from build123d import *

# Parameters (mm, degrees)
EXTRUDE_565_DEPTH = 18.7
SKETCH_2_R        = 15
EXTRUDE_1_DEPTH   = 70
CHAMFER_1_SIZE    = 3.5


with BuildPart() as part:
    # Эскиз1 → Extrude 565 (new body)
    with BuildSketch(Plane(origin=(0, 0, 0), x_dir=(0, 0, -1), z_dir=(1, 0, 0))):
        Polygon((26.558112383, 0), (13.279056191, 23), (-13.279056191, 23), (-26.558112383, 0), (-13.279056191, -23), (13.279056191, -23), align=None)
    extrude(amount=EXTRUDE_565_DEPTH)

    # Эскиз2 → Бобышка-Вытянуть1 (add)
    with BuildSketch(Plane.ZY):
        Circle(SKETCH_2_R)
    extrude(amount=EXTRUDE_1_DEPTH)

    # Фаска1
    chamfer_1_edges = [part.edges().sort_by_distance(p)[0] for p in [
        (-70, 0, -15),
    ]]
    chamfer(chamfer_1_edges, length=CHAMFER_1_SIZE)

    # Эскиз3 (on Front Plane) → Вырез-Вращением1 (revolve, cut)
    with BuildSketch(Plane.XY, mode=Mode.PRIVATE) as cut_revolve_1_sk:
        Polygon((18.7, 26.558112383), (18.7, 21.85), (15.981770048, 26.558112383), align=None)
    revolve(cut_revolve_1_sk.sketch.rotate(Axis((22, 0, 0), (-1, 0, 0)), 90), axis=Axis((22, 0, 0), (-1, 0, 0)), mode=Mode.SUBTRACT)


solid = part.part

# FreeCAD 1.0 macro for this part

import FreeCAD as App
import Part
import Sketcher

V = App.Vector
Q = App.Units.Quantity


def edges_at(feature, points):
    """Names of the edges that pass closest to the given points."""
    edges = feature.Shape.Edges
    near = lambda p: min(range(len(edges)), key=lambda i: edges[i].distToShape(Part.Vertex(*p))[0])
    return sorted({f"Edge{near(p) + 1}" for p in points})


def add_polygon(sketch, points):
    """Adds a closed chain of lines whose ends are joined by coincident constraints."""
    first, n = sketch.GeometryCount, len(points)
    for a, b in zip(points, points[1:] + points[:1]):
        sketch.addGeometry(Part.LineSegment(App.Vector(*a, 0), App.Vector(*b, 0)), False)
    for i in range(n):
        sketch.addConstraint(Sketcher.Constraint("Coincident", first + i, 2, first + (i + 1) % n, 1))

doc = App.newDocument("Part")
body = doc.addObject("PartDesign::Body", "Body")

# Sketch on YZ plane
sketch1 = doc.addObject("Sketcher::SketchObject", "Sketch")
body.addObject(sketch1)
sketch1.AttachmentSupport = (doc.YZ_Plane, [""])
sketch1.MapMode = "FlatFace"
add_polygon(sketch1, [(0, -27), (23, -13), (23, 13), (0, 27), (-23, 13), (-23, -13)])  # lines 0-5
sketch1.addConstraint(Sketcher.Constraint("Vertical", 1))
sketch1.addConstraint(Sketcher.Constraint("Vertical", 4))
sketch1.addConstraint(Sketcher.Constraint("Symmetric", 0, 2, 3, 2, -1, 1))
sketch1.addConstraint(Sketcher.Constraint("Symmetric", 2, 2, 5, 2, -1, 1))
sketch1.addConstraint(Sketcher.Constraint("PointOnObject", 2, 2, -2))
sketch1.addConstraint(Sketcher.Constraint("Parallel", 2, 5))
sketch1.addConstraint(Sketcher.Constraint("Horizontal", 1, 2, 3, 2))
sketch1.addConstraint(Sketcher.Constraint("Angle", 0, Q("30 deg")))
sketch1.addConstraint(Sketcher.Constraint("DistanceX", -1, 1, 0, 2, Q("23 mm")))
sketch1.addConstraint(Sketcher.Constraint("DistanceY", 1, 1, 1, 2, Q("26.558112 mm")))
pad1 = doc.addObject("PartDesign::Pad", "Pad")
body.addObject(pad1)
pad1.Profile = sketch1
pad1.Length = 18.7

# Sketch on YZ plane
sketch2 = doc.addObject("Sketcher::SketchObject", "Sketch001")
body.addObject(sketch2)
sketch2.AttachmentSupport = (doc.YZ_Plane, [""])
sketch2.MapMode = "FlatFace"
sketch2.addGeometry(Part.Circle(V(0, 0, 0), V(0, 0, 1), 15), False)
sketch2.addConstraint(Sketcher.Constraint("Coincident", 0, 3, -1, 1))
sketch2.addConstraint(Sketcher.Constraint("Diameter", 0, Q("30 mm")))
pad2 = doc.addObject("PartDesign::Pad", "Pad001")
body.addObject(pad2)
pad2.Profile = sketch2
pad2.Length = 70
pad2.Reversed = True
doc.recompute()

chamfer = doc.addObject("PartDesign::Chamfer", "Chamfer")
body.addObject(chamfer)
chamfer.Base = (pad2, edges_at(pad2, [(-70, 0, -15)]))
chamfer.Size = 3.5

# Sketch on XY plane
sketch3 = doc.addObject("Sketcher::SketchObject", "Sketch002")
body.addObject(sketch3)
sketch3.AttachmentSupport = (doc.XY_Plane, [""])
sketch3.MapMode = "FlatFace"
add_polygon(sketch3, [(18.7, 21.9), (18.7, 26.6), (16, 26.6)])  # lines 0-2
sketch3.addConstraint(Sketcher.Constraint("Vertical", 0))
sketch3.addConstraint(Sketcher.Constraint("Horizontal", 1))
sketch3.addConstraint(Sketcher.Constraint("Angle", 2, Q("-60 deg")))
sketch3.addConstraint(Sketcher.Constraint("DistanceX", -1, 1, 0, 2, Q("18.7 mm")))
sketch3.addConstraint(Sketcher.Constraint("DistanceY", -1, 1, 2, 2, Q("21.85 mm")))
sketch3.addConstraint(Sketcher.Constraint("DistanceX", 1, 2, 1, 1, Q("2.71823 mm")))
groove = doc.addObject("PartDesign::Groove", "Groove")
body.addObject(groove)
groove.Profile = sketch3
groove.ReferenceAxis = (sketch3, ["H_Axis"])
groove.Angle = 360

doc.recompute()
